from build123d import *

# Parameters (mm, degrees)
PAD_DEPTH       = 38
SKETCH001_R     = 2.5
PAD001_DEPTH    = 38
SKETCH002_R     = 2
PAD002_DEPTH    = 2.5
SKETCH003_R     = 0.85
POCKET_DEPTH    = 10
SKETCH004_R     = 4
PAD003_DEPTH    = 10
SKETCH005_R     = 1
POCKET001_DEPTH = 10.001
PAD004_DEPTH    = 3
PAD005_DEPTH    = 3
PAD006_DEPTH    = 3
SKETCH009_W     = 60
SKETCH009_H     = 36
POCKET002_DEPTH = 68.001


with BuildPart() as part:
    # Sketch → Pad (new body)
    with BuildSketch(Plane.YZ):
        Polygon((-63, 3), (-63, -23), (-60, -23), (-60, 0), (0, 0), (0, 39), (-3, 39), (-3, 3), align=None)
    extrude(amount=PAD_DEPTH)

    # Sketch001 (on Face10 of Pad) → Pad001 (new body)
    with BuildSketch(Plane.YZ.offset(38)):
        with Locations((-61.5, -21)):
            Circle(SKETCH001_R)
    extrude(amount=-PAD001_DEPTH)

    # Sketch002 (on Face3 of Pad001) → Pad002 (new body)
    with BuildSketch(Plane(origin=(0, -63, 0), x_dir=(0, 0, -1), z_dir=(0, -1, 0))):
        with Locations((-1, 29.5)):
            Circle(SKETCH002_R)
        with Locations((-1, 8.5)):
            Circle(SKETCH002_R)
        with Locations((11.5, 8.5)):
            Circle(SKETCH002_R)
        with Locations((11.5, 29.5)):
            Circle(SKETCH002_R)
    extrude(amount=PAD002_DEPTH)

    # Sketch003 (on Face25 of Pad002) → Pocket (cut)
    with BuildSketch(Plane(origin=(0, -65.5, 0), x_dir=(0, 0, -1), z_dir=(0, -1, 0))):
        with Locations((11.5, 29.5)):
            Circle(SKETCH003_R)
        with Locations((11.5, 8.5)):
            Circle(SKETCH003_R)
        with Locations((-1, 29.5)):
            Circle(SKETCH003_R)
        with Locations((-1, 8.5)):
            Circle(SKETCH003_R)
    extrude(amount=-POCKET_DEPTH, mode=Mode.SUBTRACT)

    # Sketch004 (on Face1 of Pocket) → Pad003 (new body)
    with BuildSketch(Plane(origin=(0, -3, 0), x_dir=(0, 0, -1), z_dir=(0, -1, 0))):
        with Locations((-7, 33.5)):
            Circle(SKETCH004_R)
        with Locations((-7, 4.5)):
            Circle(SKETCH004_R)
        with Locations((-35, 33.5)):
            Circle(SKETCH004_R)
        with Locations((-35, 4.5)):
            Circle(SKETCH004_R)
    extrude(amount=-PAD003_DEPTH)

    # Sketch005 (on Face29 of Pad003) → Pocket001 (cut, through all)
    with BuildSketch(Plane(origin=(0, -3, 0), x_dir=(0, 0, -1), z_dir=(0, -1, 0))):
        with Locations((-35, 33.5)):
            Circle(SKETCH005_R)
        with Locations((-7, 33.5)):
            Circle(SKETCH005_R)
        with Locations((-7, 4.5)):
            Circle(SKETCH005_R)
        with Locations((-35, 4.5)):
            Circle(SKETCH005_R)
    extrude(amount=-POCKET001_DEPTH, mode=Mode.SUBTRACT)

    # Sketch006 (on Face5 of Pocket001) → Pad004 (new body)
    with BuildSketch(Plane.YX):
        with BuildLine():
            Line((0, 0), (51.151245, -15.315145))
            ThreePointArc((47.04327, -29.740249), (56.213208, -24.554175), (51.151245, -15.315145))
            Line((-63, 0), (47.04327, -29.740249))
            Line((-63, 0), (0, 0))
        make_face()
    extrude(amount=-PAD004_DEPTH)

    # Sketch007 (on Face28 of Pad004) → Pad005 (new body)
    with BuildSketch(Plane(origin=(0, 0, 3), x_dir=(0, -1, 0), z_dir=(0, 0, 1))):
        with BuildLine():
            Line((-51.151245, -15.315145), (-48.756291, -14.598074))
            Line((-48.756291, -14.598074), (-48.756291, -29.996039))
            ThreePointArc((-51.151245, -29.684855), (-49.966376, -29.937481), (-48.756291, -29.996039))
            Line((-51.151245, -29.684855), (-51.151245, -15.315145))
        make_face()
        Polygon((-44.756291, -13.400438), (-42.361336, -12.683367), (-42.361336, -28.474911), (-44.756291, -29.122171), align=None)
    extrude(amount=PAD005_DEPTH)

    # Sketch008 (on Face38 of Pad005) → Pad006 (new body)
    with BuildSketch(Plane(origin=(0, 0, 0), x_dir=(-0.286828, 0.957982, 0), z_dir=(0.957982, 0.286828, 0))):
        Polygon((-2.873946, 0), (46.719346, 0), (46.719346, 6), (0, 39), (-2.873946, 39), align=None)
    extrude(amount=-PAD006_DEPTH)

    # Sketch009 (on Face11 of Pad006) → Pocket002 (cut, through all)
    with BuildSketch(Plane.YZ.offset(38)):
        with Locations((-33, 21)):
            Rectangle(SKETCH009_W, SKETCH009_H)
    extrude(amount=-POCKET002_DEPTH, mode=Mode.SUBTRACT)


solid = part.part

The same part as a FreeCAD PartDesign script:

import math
import FreeCAD as App
import Part
import Sketcher
Q = App.Units.Quantity

doc = App.newDocument("Part")
body = doc.addObject("PartDesign::Body", "Body")

sketch1 = doc.addObject("Sketcher::SketchObject", "Sketch")
body.addObject(sketch1)
sketch1.AttachmentSupport = (doc.YZ_Plane, [""])
sketch1.MapMode = "FlatFace"
sketch1.addGeometry([
    Part.LineSegment(App.Vector(-63, 3, 0), App.Vector(-63, -23, 0)),
    Part.LineSegment(App.Vector(-63, -23, 0), App.Vector(-60, -23, 0)),
    Part.LineSegment(App.Vector(-60, -23, 0), App.Vector(-60, 0, 0)),
    Part.LineSegment(App.Vector(-60, 0, 0), App.Vector(0, 0, 0)),
    Part.LineSegment(App.Vector(0, 0, 0), App.Vector(0, 39, 0)),
    Part.LineSegment(App.Vector(0, 39, 0), App.Vector(-3, 39, 0)),
    Part.LineSegment(App.Vector(-3, 39, 0), App.Vector(-3, 3, 0)),
    Part.LineSegment(App.Vector(-3, 3, 0), App.Vector(-63, 3, 0)),
], False)
sketch1.addConstraint([
    Sketcher.Constraint("Coincident", 0, 2, 1, 1),
    Sketcher.Constraint("Coincident", 1, 2, 2, 1),
    Sketcher.Constraint("Coincident", 2, 2, 3, 1),
    Sketcher.Constraint("Coincident", 3, 2, 4, 1),
    Sketcher.Constraint("Coincident", 4, 2, 5, 1),
    Sketcher.Constraint("Coincident", 5, 2, 6, 1),
    Sketcher.Constraint("Coincident", 6, 2, 7, 1),
    Sketcher.Constraint("Coincident", 7, 2, 0, 1),
    Sketcher.Constraint("Vertical", 0),
    Sketcher.Constraint("Horizontal", 1),
    Sketcher.Constraint("Vertical", 2),
    Sketcher.Constraint("Horizontal", 3),
    Sketcher.Constraint("Vertical", 4),
    Sketcher.Constraint("Horizontal", 5),
    Sketcher.Constraint("Vertical", 6),
    Sketcher.Constraint("Horizontal", 7),
    Sketcher.Constraint("Coincident", 3, 2, -1, 1),
    Sketcher.Constraint("Equal", 1, 5),
    Sketcher.Constraint("DistanceX", 1, 1, 1, 2, Q("3 mm")),
    Sketcher.Constraint("DistanceX", 3, 1, 3, 2, Q("60 mm")),
    Sketcher.Constraint("DistanceY", 0, 2, 0, 1, Q("26 mm")),
    Sketcher.Constraint("DistanceY", 2, 1, 2, 2, Q("23 mm")),
    Sketcher.Constraint("DistanceY", 4, 1, 4, 2, Q("39 mm")),
])
pad1 = doc.addObject("PartDesign::Pad", "Pad")
body.addObject(pad1)
pad1.Profile = sketch1
pad1.Length = 38

sketch2 = doc.addObject("Sketcher::SketchObject", "Sketch001")
body.addObject(sketch2)
sketch2.AttachmentSupport = (doc.YZ_Plane, [""])
sketch2.MapMode = "FlatFace"
sketch2.AttachmentOffset = App.Placement(App.Vector(0, 0, 38), App.Rotation())
sketch2.addGeometry(Part.Circle(App.Vector(-61.5, -21, 0), App.Vector(0, 0, 1), 2.5), False)
sketch2.addConstraint([
    Sketcher.Constraint("Diameter", 0, Q("5 mm")),
    Sketcher.Constraint("DistanceY", 0, 3, -1, 1, Q("21 mm")),
    Sketcher.Constraint("DistanceX", 0, 3, -1, 1, Q("61.5 mm")),
])
pad2 = doc.addObject("PartDesign::Pad", "Pad001")
body.addObject(pad2)
pad2.Profile = sketch2
pad2.Length = 38
pad2.Reversed = True

sketch3 = doc.addObject("Sketcher::SketchObject", "Sketch002")
body.addObject(sketch3)
sketch3.AttachmentSupport = (doc.XZ_Plane, [""])
sketch3.MapMode = "FlatFace"
sketch3.AttachmentOffset = App.Placement(App.Vector(0, 0, 63), App.Rotation())
sketch3.addGeometry([
    Part.Circle(App.Vector(29.5, 1, 0), App.Vector(0, 0, 1), 2),
    Part.Circle(App.Vector(8.5, 1, 0), App.Vector(0, 0, 1), 2),
    Part.Circle(App.Vector(8.5, -11.5, 0), App.Vector(0, 0, 1), 2),
    Part.Circle(App.Vector(29.5, -11.5, 0), App.Vector(0, 0, 1), 2),
], False)
sketch3.addConstraint([
    Sketcher.Constraint("Equal", 0, 1),
    Sketcher.Constraint("Equal", 1, 2),
    Sketcher.Constraint("Equal", 2, 3),
    Sketcher.Constraint("Horizontal", 0, 3, 1, 3),
    Sketcher.Constraint("Horizontal", 2, 3, 3, 3),
    Sketcher.Constraint("Vertical", 1, 3, 2, 3),
    Sketcher.Constraint("Vertical", 0, 3, 3, 3),
    Sketcher.Constraint("Diameter", 0, Q("4 mm")),
    Sketcher.Constraint("DistanceY", -1, 1, 0, 3, Q("1 mm")),
    Sketcher.Constraint("DistanceX", 1, 3, 0, 3, Q("21 mm")),
    Sketcher.Constraint("DistanceX", -1, 1, 0, 3, Q("29.5 mm")),
    Sketcher.Constraint("DistanceY", 2, 3, -1, 1, Q("11.5 mm")),
])
pad3 = doc.addObject("PartDesign::Pad", "Pad002")
body.addObject(pad3)
pad3.Profile = sketch3
pad3.Length = 2.5

sketch4 = doc.addObject("Sketcher::SketchObject", "Sketch003")
body.addObject(sketch4)
sketch4.AttachmentSupport = (doc.XZ_Plane, [""])
sketch4.MapMode = "FlatFace"
sketch4.AttachmentOffset = App.Placement(App.Vector(0, 0, 65.5), App.Rotation())
sketch4.addGeometry([
    Part.Circle(App.Vector(29.5, -11.5, 0), App.Vector(0, 0, 1), 0.85),
    Part.Circle(App.Vector(8.5, -11.5, 0), App.Vector(0, 0, 1), 0.85),
    Part.Circle(App.Vector(29.5, 1, 0), App.Vector(0, 0, 1), 0.85),
    Part.Circle(App.Vector(8.5, 1, 0), App.Vector(0, 0, 1), 0.85),
], False)
sketch4.addConstraint([
    Sketcher.Constraint("Equal", 0, 1),
    Sketcher.Constraint("Equal", 1, 2),
    Sketcher.Constraint("Equal", 2, 3),
    Sketcher.Constraint("Horizontal", 0, 3, 1, 3),
    Sketcher.Constraint("Horizontal", 2, 3, 3, 3),
    Sketcher.Constraint("Vertical", 0, 3, 2, 3),
    Sketcher.Constraint("Vertical", 1, 3, 3, 3),
    Sketcher.Constraint("Diameter", 0, Q("1.7 mm")),
    Sketcher.Constraint("DistanceY", -1, 1, 2, 3, Q("1 mm")),
    Sketcher.Constraint("DistanceX", 1, 3, 0, 3, Q("21 mm")),
    Sketcher.Constraint("DistanceX", -1, 1, 0, 3, Q("29.5 mm")),
    Sketcher.Constraint("DistanceY", 0, 3, -1, 1, Q("11.5 mm")),
])
pocket1 = doc.addObject("PartDesign::Pocket", "Pocket")
body.addObject(pocket1)
pocket1.Profile = sketch4
pocket1.Length = 10

sketch5 = doc.addObject("Sketcher::SketchObject", "Sketch004")
body.addObject(sketch5)
sketch5.AttachmentSupport = (doc.XZ_Plane, [""])
sketch5.MapMode = "FlatFace"
sketch5.AttachmentOffset = App.Placement(App.Vector(0, 0, 3), App.Rotation())
sketch5.addGeometry([
    Part.Circle(App.Vector(33.5, 7, 0), App.Vector(0, 0, 1), 4),
    Part.Circle(App.Vector(4.5, 7, 0), App.Vector(0, 0, 1), 4),
    Part.Circle(App.Vector(33.5, 35, 0), App.Vector(0, 0, 1), 4),
    Part.Circle(App.Vector(4.5, 35, 0), App.Vector(0, 0, 1), 4),
], False)
sketch5.addConstraint([
    Sketcher.Constraint("Equal", 0, 1),
    Sketcher.Constraint("Equal", 1, 2),
    Sketcher.Constraint("Equal", 2, 3),
    Sketcher.Constraint("Horizontal", 0, 3, 1, 3),
    Sketcher.Constraint("Horizontal", 2, 3, 3, 3),
    Sketcher.Constraint("Vertical", 0, 3, 2, 3),
    Sketcher.Constraint("Vertical", 1, 3, 3, 3),
    Sketcher.Constraint("Diameter", 0, Q("8 mm")),
    Sketcher.Constraint("DistanceY", -1, 1, 0, 3, Q("7 mm")),
    Sketcher.Constraint("DistanceY", -1, 1, 2, 3, Q("35 mm")),
    Sketcher.Constraint("DistanceX", 1, 3, 0, 3, Q("29 mm")),
    Sketcher.Constraint("DistanceX", -1, 1, 0, 3, Q("33.5 mm")),
])
pad4 = doc.addObject("PartDesign::Pad", "Pad003")
body.addObject(pad4)
pad4.Profile = sketch5
pad4.Length = 10
pad4.Reversed = True

sketch6 = doc.addObject("Sketcher::SketchObject", "Sketch005")
body.addObject(sketch6)
sketch6.AttachmentSupport = (doc.XZ_Plane, [""])
sketch6.MapMode = "FlatFace"
sketch6.AttachmentOffset = App.Placement(App.Vector(0, 0, 3), App.Rotation())
sketch6.addGeometry([
    Part.Circle(App.Vector(33.5, 35, 0), App.Vector(0, 0, 1), 1),
    Part.Circle(App.Vector(33.5, 7, 0), App.Vector(0, 0, 1), 1),
    Part.Circle(App.Vector(4.5, 7, 0), App.Vector(0, 0, 1), 1),
    Part.Circle(App.Vector(4.5, 35, 0), App.Vector(0, 0, 1), 1),
], False)
sketch6.addConstraint([
    Sketcher.Constraint("Equal", 0, 1),
    Sketcher.Constraint("Equal", 1, 2),
    Sketcher.Constraint("Equal", 2, 3),
    Sketcher.Constraint("Horizontal", 1, 3, 2, 3),
    Sketcher.Constraint("Horizontal", 0, 3, 3, 3),
    Sketcher.Constraint("Vertical", 0, 3, 1, 3),
    Sketcher.Constraint("Vertical", 2, 3, 3, 3),
    Sketcher.Constraint("Diameter", 0, Q("2 mm")),
    Sketcher.Constraint("DistanceY", -1, 1, 0, 3, Q("35 mm")),
    Sketcher.Constraint("DistanceY", -1, 1, 1, 3, Q("7 mm")),
    Sketcher.Constraint("DistanceX", 2, 3, 1, 3, Q("29 mm")),
    Sketcher.Constraint("DistanceX", -1, 1, 0, 3, Q("33.5 mm")),
])
pocket2 = doc.addObject("PartDesign::Pocket", "Pocket001")
body.addObject(pocket2)
pocket2.Profile = sketch6
pocket2.Type = "ThroughAll"

sketch7 = doc.addObject("Sketcher::SketchObject", "Sketch006")
body.addObject(sketch7)
sketch7.AttachmentSupport = (doc.XY_Plane, [""])
sketch7.MapMode = "FlatFace"
sketch7.addGeometry([
    Part.LineSegment(App.Vector(-15.315145, 51.151245, 0), App.Vector(0, 0, 0)),
    Part.LineSegment(App.Vector(0, 0, 0), App.Vector(0, -63, 0)),
    Part.LineSegment(App.Vector(0, -63, 0), App.Vector(-29.740249, 47.04327, 0)),
    Part.ArcOfCircle(Part.Circle(App.Vector(-22.5, 49, 0), App.Vector(0, 0, 1), 7.5), math.radians(16.668424), math.radians(195.123318)),
], False)
sketch7.addConstraint([
    Sketcher.Constraint("Coincident", 0, 2, 1, 1),
    Sketcher.Constraint("Coincident", 1, 2, 2, 1),
    Sketcher.Constraint("Coincident", 2, 2, 3, 2),
    Sketcher.Constraint("Coincident", 3, 1, 0, 1),
    Sketcher.Constraint("Vertical", 1),
    Sketcher.Constraint("Coincident", 0, 2, -1, 1),
    Sketcher.Constraint("Radius", 3, Q("7.5 mm")),
    Sketcher.Constraint("DistanceY", 1, 2, 1, 1, Q("63 mm")),
    Sketcher.Constraint("DistanceY", -1, 1, 3, 3, Q("49 mm")),
    Sketcher.Constraint("DistanceX", 3, 3, -1, 1, Q("22.5 mm")),
    Sketcher.Constraint("Distance", 0, Q("53.394789 mm")),
    Sketcher.Constraint("DistanceX", 2, 2, -1, 1, Q("29.740249 mm")),
])
pad5 = doc.addObject("PartDesign::Pad", "Pad004")
body.addObject(pad5)
pad5.Profile = sketch7
pad5.Length = 3

sketch8 = doc.addObject("Sketcher::SketchObject", "Sketch007")
body.addObject(sketch8)
sketch8.AttachmentSupport = (doc.XY_Plane, [""])
sketch8.MapMode = "FlatFace"
sketch8.AttachmentOffset = App.Placement(App.Vector(0, 0, 3), App.Rotation())
sketch8.addGeometry([
    Part.LineSegment(App.Vector(-14.598074, 48.756291, 0), App.Vector(-15.315145, 51.151245, 0)),
    Part.LineSegment(App.Vector(-15.315145, 51.151245, 0), App.Vector(-29.684855, 51.151245, 0)),
    Part.ArcOfCircle(Part.Circle(App.Vector(-22.500054, 49.000007, 0), App.Vector(0, 0, 1), 7.499946), math.radians(163.331508), math.radians(181.862197)),
    Part.LineSegment(App.Vector(-29.996039, 48.756291, 0), App.Vector(-14.598074, 48.756291, 0)),
    Part.LineSegment(App.Vector(-12.683367, 42.361336, 0), App.Vector(-13.400438, 44.756291, 0)),
    Part.LineSegment(App.Vector(-13.400438, 44.756291, 0), App.Vector(-29.122171, 44.756291, 0)),
    Part.LineSegment(App.Vector(-29.122171, 44.756291, 0), App.Vector(-28.474911, 42.361336, 0)),
    Part.LineSegment(App.Vector(-28.474911, 42.361336, 0), App.Vector(-12.683367, 42.361336, 0)),
], False)
sketch8.addConstraint([
    Sketcher.Constraint("Coincident", 0, 2, 1, 1),
    Sketcher.Constraint("Coincident", 1, 2, 2, 1),
    Sketcher.Constraint("Coincident", 2, 2, 3, 1),
    Sketcher.Constraint("Coincident", 3, 2, 0, 1),
    Sketcher.Constraint("Coincident", 4, 2, 5, 1),
    Sketcher.Constraint("Coincident", 5, 2, 6, 1),
    Sketcher.Constraint("Coincident", 6, 2, 7, 1),
    Sketcher.Constraint("Coincident", 7, 2, 4, 1),
    Sketcher.Constraint("Horizontal", 1),
    Sketcher.Constraint("Horizontal", 3),
    Sketcher.Constraint("Horizontal", 5),
    Sketcher.Constraint("Horizontal", 7),
    Sketcher.Constraint("Parallel", 0, 4),
    Sketcher.Constraint("Equal", 0, 4),
    Sketcher.Constraint("DistanceY", 4, 2, 3, 2, Q("4 mm")),
    Sketcher.Constraint("Distance", 0, Q("2.499999 mm")),
    Sketcher.Constraint("Radius", 2, Q("7.499946 mm")),
    Sketcher.Constraint("DistanceX", 1, 2, 1, 1, Q("14.36971 mm")),
    Sketcher.Constraint("DistanceX", 1, 2, 2, 3, Q("7.184801 mm")),
    Sketcher.Constraint("DistanceX", 2, 2, 4, 2, Q("16.595601 mm")),
    Sketcher.Constraint("DistanceX", 3, 1, 3, 2, Q("15.397965 mm")),
    Sketcher.Constraint("DistanceX", 5, 2, 5, 1, Q("15.721733 mm")),
    Sketcher.Constraint("DistanceX", 7, 1, 7, 2, Q("15.791544 mm")),
    Sketcher.Constraint("DistanceX", 2, 2, -1, 1, Q("29.996039 mm")),
    Sketcher.Constraint("DistanceY", -1, 1, 2, 2, Q("48.756291 mm")),
])
pad6 = doc.addObject("PartDesign::Pad", "Pad005")
body.addObject(pad6)
pad6.Profile = sketch8
pad6.Length = 3

sketch9 = doc.addObject("Sketcher::SketchObject", "Sketch008")
body.addObject(sketch9)
sketch9.Placement = App.Placement(App.Vector(0, 0, 0), App.Rotation(App.Vector(-0.286828027, 0.957982089, 0), App.Vector(0, 0, 1), App.Vector(0.957982089, 0.286828027, 0), "ZXY"))
sketch9.addGeometry([
    Part.LineSegment(App.Vector(-2.873946, 0, 0), App.Vector(46.719346, 0, 0)),
    Part.LineSegment(App.Vector(46.719346, 0, 0), App.Vector(46.719346, 6, 0)),
    Part.LineSegment(App.Vector(46.719346, 6, 0), App.Vector(0, 39, 0)),
    Part.LineSegment(App.Vector(0, 39, 0), App.Vector(-2.873946, 39, 0)),
    Part.LineSegment(App.Vector(-2.873946, 39, 0), App.Vector(-2.873946, 0, 0)),
], False)
sketch9.addConstraint([
    Sketcher.Constraint("Coincident", 0, 2, 1, 1),
    Sketcher.Constraint("Coincident", 1, 2, 2, 1),
    Sketcher.Constraint("Coincident", 2, 2, 3, 1),
    Sketcher.Constraint("Coincident", 3, 2, 4, 1),
    Sketcher.Constraint("Coincident", 4, 2, 0, 1),
    Sketcher.Constraint("Horizontal", 0),
    Sketcher.Constraint("Vertical", 1),
    Sketcher.Constraint("Horizontal", 3),
    Sketcher.Constraint("Vertical", 4),
    Sketcher.Constraint("PointOnObject", 0, 2, -1),
    Sketcher.Constraint("PointOnObject", 2, 2, -2),
    Sketcher.Constraint("DistanceY", 1, 1, 1, 2, Q("6 mm")),
    Sketcher.Constraint("DistanceY", 4, 2, 4, 1, Q("39 mm")),
    Sketcher.Constraint("DistanceX", 0, 1, 0, 2, Q("49.593292 mm")),
    Sketcher.Constraint("DistanceX", 3, 2, 3, 1, Q("2.873946 mm")),
])
pad7 = doc.addObject("PartDesign::Pad", "Pad006")
body.addObject(pad7)
pad7.Profile = sketch9
pad7.Length = 3
pad7.Reversed = True

sketch10 = doc.addObject("Sketcher::SketchObject", "Sketch009")
body.addObject(sketch10)
sketch10.AttachmentSupport = (doc.YZ_Plane, [""])
sketch10.MapMode = "FlatFace"
sketch10.AttachmentOffset = App.Placement(App.Vector(0, 0, 38), App.Rotation())
sketch10.addGeometry([
    Part.LineSegment(App.Vector(-63, 39, 0), App.Vector(-63, 3, 0)),
    Part.LineSegment(App.Vector(-63, 3, 0), App.Vector(-3, 3, 0)),
    Part.LineSegment(App.Vector(-3, 3, 0), App.Vector(-3, 39, 0)),
    Part.LineSegment(App.Vector(-3, 39, 0), App.Vector(-63, 39, 0)),
], False)
sketch10.addConstraint([
    Sketcher.Constraint("Coincident", 0, 2, 1, 1),
    Sketcher.Constraint("Coincident", 1, 2, 2, 1),
    Sketcher.Constraint("Coincident", 2, 2, 3, 1),
    Sketcher.Constraint("Coincident", 3, 2, 0, 1),
    Sketcher.Constraint("Vertical", 0),
    Sketcher.Constraint("Horizontal", 1),
    Sketcher.Constraint("Vertical", 2),
    Sketcher.Constraint("Horizontal", 3),
    Sketcher.Constraint("DistanceX", 1, 1, 1, 2, Q("60 mm")),
    Sketcher.Constraint("DistanceY", 0, 2, 0, 1, Q("36 mm")),
    Sketcher.Constraint("DistanceX", 0, 2, -1, 1, Q("63 mm")),
    Sketcher.Constraint("DistanceY", -1, 1, 0, 2, Q("3 mm")),
])
pocket3 = doc.addObject("PartDesign::Pocket", "Pocket002")
body.addObject(pocket3)
pocket3.Profile = sketch10
pocket3.Type = "ThroughAll"

doc.recompute()
